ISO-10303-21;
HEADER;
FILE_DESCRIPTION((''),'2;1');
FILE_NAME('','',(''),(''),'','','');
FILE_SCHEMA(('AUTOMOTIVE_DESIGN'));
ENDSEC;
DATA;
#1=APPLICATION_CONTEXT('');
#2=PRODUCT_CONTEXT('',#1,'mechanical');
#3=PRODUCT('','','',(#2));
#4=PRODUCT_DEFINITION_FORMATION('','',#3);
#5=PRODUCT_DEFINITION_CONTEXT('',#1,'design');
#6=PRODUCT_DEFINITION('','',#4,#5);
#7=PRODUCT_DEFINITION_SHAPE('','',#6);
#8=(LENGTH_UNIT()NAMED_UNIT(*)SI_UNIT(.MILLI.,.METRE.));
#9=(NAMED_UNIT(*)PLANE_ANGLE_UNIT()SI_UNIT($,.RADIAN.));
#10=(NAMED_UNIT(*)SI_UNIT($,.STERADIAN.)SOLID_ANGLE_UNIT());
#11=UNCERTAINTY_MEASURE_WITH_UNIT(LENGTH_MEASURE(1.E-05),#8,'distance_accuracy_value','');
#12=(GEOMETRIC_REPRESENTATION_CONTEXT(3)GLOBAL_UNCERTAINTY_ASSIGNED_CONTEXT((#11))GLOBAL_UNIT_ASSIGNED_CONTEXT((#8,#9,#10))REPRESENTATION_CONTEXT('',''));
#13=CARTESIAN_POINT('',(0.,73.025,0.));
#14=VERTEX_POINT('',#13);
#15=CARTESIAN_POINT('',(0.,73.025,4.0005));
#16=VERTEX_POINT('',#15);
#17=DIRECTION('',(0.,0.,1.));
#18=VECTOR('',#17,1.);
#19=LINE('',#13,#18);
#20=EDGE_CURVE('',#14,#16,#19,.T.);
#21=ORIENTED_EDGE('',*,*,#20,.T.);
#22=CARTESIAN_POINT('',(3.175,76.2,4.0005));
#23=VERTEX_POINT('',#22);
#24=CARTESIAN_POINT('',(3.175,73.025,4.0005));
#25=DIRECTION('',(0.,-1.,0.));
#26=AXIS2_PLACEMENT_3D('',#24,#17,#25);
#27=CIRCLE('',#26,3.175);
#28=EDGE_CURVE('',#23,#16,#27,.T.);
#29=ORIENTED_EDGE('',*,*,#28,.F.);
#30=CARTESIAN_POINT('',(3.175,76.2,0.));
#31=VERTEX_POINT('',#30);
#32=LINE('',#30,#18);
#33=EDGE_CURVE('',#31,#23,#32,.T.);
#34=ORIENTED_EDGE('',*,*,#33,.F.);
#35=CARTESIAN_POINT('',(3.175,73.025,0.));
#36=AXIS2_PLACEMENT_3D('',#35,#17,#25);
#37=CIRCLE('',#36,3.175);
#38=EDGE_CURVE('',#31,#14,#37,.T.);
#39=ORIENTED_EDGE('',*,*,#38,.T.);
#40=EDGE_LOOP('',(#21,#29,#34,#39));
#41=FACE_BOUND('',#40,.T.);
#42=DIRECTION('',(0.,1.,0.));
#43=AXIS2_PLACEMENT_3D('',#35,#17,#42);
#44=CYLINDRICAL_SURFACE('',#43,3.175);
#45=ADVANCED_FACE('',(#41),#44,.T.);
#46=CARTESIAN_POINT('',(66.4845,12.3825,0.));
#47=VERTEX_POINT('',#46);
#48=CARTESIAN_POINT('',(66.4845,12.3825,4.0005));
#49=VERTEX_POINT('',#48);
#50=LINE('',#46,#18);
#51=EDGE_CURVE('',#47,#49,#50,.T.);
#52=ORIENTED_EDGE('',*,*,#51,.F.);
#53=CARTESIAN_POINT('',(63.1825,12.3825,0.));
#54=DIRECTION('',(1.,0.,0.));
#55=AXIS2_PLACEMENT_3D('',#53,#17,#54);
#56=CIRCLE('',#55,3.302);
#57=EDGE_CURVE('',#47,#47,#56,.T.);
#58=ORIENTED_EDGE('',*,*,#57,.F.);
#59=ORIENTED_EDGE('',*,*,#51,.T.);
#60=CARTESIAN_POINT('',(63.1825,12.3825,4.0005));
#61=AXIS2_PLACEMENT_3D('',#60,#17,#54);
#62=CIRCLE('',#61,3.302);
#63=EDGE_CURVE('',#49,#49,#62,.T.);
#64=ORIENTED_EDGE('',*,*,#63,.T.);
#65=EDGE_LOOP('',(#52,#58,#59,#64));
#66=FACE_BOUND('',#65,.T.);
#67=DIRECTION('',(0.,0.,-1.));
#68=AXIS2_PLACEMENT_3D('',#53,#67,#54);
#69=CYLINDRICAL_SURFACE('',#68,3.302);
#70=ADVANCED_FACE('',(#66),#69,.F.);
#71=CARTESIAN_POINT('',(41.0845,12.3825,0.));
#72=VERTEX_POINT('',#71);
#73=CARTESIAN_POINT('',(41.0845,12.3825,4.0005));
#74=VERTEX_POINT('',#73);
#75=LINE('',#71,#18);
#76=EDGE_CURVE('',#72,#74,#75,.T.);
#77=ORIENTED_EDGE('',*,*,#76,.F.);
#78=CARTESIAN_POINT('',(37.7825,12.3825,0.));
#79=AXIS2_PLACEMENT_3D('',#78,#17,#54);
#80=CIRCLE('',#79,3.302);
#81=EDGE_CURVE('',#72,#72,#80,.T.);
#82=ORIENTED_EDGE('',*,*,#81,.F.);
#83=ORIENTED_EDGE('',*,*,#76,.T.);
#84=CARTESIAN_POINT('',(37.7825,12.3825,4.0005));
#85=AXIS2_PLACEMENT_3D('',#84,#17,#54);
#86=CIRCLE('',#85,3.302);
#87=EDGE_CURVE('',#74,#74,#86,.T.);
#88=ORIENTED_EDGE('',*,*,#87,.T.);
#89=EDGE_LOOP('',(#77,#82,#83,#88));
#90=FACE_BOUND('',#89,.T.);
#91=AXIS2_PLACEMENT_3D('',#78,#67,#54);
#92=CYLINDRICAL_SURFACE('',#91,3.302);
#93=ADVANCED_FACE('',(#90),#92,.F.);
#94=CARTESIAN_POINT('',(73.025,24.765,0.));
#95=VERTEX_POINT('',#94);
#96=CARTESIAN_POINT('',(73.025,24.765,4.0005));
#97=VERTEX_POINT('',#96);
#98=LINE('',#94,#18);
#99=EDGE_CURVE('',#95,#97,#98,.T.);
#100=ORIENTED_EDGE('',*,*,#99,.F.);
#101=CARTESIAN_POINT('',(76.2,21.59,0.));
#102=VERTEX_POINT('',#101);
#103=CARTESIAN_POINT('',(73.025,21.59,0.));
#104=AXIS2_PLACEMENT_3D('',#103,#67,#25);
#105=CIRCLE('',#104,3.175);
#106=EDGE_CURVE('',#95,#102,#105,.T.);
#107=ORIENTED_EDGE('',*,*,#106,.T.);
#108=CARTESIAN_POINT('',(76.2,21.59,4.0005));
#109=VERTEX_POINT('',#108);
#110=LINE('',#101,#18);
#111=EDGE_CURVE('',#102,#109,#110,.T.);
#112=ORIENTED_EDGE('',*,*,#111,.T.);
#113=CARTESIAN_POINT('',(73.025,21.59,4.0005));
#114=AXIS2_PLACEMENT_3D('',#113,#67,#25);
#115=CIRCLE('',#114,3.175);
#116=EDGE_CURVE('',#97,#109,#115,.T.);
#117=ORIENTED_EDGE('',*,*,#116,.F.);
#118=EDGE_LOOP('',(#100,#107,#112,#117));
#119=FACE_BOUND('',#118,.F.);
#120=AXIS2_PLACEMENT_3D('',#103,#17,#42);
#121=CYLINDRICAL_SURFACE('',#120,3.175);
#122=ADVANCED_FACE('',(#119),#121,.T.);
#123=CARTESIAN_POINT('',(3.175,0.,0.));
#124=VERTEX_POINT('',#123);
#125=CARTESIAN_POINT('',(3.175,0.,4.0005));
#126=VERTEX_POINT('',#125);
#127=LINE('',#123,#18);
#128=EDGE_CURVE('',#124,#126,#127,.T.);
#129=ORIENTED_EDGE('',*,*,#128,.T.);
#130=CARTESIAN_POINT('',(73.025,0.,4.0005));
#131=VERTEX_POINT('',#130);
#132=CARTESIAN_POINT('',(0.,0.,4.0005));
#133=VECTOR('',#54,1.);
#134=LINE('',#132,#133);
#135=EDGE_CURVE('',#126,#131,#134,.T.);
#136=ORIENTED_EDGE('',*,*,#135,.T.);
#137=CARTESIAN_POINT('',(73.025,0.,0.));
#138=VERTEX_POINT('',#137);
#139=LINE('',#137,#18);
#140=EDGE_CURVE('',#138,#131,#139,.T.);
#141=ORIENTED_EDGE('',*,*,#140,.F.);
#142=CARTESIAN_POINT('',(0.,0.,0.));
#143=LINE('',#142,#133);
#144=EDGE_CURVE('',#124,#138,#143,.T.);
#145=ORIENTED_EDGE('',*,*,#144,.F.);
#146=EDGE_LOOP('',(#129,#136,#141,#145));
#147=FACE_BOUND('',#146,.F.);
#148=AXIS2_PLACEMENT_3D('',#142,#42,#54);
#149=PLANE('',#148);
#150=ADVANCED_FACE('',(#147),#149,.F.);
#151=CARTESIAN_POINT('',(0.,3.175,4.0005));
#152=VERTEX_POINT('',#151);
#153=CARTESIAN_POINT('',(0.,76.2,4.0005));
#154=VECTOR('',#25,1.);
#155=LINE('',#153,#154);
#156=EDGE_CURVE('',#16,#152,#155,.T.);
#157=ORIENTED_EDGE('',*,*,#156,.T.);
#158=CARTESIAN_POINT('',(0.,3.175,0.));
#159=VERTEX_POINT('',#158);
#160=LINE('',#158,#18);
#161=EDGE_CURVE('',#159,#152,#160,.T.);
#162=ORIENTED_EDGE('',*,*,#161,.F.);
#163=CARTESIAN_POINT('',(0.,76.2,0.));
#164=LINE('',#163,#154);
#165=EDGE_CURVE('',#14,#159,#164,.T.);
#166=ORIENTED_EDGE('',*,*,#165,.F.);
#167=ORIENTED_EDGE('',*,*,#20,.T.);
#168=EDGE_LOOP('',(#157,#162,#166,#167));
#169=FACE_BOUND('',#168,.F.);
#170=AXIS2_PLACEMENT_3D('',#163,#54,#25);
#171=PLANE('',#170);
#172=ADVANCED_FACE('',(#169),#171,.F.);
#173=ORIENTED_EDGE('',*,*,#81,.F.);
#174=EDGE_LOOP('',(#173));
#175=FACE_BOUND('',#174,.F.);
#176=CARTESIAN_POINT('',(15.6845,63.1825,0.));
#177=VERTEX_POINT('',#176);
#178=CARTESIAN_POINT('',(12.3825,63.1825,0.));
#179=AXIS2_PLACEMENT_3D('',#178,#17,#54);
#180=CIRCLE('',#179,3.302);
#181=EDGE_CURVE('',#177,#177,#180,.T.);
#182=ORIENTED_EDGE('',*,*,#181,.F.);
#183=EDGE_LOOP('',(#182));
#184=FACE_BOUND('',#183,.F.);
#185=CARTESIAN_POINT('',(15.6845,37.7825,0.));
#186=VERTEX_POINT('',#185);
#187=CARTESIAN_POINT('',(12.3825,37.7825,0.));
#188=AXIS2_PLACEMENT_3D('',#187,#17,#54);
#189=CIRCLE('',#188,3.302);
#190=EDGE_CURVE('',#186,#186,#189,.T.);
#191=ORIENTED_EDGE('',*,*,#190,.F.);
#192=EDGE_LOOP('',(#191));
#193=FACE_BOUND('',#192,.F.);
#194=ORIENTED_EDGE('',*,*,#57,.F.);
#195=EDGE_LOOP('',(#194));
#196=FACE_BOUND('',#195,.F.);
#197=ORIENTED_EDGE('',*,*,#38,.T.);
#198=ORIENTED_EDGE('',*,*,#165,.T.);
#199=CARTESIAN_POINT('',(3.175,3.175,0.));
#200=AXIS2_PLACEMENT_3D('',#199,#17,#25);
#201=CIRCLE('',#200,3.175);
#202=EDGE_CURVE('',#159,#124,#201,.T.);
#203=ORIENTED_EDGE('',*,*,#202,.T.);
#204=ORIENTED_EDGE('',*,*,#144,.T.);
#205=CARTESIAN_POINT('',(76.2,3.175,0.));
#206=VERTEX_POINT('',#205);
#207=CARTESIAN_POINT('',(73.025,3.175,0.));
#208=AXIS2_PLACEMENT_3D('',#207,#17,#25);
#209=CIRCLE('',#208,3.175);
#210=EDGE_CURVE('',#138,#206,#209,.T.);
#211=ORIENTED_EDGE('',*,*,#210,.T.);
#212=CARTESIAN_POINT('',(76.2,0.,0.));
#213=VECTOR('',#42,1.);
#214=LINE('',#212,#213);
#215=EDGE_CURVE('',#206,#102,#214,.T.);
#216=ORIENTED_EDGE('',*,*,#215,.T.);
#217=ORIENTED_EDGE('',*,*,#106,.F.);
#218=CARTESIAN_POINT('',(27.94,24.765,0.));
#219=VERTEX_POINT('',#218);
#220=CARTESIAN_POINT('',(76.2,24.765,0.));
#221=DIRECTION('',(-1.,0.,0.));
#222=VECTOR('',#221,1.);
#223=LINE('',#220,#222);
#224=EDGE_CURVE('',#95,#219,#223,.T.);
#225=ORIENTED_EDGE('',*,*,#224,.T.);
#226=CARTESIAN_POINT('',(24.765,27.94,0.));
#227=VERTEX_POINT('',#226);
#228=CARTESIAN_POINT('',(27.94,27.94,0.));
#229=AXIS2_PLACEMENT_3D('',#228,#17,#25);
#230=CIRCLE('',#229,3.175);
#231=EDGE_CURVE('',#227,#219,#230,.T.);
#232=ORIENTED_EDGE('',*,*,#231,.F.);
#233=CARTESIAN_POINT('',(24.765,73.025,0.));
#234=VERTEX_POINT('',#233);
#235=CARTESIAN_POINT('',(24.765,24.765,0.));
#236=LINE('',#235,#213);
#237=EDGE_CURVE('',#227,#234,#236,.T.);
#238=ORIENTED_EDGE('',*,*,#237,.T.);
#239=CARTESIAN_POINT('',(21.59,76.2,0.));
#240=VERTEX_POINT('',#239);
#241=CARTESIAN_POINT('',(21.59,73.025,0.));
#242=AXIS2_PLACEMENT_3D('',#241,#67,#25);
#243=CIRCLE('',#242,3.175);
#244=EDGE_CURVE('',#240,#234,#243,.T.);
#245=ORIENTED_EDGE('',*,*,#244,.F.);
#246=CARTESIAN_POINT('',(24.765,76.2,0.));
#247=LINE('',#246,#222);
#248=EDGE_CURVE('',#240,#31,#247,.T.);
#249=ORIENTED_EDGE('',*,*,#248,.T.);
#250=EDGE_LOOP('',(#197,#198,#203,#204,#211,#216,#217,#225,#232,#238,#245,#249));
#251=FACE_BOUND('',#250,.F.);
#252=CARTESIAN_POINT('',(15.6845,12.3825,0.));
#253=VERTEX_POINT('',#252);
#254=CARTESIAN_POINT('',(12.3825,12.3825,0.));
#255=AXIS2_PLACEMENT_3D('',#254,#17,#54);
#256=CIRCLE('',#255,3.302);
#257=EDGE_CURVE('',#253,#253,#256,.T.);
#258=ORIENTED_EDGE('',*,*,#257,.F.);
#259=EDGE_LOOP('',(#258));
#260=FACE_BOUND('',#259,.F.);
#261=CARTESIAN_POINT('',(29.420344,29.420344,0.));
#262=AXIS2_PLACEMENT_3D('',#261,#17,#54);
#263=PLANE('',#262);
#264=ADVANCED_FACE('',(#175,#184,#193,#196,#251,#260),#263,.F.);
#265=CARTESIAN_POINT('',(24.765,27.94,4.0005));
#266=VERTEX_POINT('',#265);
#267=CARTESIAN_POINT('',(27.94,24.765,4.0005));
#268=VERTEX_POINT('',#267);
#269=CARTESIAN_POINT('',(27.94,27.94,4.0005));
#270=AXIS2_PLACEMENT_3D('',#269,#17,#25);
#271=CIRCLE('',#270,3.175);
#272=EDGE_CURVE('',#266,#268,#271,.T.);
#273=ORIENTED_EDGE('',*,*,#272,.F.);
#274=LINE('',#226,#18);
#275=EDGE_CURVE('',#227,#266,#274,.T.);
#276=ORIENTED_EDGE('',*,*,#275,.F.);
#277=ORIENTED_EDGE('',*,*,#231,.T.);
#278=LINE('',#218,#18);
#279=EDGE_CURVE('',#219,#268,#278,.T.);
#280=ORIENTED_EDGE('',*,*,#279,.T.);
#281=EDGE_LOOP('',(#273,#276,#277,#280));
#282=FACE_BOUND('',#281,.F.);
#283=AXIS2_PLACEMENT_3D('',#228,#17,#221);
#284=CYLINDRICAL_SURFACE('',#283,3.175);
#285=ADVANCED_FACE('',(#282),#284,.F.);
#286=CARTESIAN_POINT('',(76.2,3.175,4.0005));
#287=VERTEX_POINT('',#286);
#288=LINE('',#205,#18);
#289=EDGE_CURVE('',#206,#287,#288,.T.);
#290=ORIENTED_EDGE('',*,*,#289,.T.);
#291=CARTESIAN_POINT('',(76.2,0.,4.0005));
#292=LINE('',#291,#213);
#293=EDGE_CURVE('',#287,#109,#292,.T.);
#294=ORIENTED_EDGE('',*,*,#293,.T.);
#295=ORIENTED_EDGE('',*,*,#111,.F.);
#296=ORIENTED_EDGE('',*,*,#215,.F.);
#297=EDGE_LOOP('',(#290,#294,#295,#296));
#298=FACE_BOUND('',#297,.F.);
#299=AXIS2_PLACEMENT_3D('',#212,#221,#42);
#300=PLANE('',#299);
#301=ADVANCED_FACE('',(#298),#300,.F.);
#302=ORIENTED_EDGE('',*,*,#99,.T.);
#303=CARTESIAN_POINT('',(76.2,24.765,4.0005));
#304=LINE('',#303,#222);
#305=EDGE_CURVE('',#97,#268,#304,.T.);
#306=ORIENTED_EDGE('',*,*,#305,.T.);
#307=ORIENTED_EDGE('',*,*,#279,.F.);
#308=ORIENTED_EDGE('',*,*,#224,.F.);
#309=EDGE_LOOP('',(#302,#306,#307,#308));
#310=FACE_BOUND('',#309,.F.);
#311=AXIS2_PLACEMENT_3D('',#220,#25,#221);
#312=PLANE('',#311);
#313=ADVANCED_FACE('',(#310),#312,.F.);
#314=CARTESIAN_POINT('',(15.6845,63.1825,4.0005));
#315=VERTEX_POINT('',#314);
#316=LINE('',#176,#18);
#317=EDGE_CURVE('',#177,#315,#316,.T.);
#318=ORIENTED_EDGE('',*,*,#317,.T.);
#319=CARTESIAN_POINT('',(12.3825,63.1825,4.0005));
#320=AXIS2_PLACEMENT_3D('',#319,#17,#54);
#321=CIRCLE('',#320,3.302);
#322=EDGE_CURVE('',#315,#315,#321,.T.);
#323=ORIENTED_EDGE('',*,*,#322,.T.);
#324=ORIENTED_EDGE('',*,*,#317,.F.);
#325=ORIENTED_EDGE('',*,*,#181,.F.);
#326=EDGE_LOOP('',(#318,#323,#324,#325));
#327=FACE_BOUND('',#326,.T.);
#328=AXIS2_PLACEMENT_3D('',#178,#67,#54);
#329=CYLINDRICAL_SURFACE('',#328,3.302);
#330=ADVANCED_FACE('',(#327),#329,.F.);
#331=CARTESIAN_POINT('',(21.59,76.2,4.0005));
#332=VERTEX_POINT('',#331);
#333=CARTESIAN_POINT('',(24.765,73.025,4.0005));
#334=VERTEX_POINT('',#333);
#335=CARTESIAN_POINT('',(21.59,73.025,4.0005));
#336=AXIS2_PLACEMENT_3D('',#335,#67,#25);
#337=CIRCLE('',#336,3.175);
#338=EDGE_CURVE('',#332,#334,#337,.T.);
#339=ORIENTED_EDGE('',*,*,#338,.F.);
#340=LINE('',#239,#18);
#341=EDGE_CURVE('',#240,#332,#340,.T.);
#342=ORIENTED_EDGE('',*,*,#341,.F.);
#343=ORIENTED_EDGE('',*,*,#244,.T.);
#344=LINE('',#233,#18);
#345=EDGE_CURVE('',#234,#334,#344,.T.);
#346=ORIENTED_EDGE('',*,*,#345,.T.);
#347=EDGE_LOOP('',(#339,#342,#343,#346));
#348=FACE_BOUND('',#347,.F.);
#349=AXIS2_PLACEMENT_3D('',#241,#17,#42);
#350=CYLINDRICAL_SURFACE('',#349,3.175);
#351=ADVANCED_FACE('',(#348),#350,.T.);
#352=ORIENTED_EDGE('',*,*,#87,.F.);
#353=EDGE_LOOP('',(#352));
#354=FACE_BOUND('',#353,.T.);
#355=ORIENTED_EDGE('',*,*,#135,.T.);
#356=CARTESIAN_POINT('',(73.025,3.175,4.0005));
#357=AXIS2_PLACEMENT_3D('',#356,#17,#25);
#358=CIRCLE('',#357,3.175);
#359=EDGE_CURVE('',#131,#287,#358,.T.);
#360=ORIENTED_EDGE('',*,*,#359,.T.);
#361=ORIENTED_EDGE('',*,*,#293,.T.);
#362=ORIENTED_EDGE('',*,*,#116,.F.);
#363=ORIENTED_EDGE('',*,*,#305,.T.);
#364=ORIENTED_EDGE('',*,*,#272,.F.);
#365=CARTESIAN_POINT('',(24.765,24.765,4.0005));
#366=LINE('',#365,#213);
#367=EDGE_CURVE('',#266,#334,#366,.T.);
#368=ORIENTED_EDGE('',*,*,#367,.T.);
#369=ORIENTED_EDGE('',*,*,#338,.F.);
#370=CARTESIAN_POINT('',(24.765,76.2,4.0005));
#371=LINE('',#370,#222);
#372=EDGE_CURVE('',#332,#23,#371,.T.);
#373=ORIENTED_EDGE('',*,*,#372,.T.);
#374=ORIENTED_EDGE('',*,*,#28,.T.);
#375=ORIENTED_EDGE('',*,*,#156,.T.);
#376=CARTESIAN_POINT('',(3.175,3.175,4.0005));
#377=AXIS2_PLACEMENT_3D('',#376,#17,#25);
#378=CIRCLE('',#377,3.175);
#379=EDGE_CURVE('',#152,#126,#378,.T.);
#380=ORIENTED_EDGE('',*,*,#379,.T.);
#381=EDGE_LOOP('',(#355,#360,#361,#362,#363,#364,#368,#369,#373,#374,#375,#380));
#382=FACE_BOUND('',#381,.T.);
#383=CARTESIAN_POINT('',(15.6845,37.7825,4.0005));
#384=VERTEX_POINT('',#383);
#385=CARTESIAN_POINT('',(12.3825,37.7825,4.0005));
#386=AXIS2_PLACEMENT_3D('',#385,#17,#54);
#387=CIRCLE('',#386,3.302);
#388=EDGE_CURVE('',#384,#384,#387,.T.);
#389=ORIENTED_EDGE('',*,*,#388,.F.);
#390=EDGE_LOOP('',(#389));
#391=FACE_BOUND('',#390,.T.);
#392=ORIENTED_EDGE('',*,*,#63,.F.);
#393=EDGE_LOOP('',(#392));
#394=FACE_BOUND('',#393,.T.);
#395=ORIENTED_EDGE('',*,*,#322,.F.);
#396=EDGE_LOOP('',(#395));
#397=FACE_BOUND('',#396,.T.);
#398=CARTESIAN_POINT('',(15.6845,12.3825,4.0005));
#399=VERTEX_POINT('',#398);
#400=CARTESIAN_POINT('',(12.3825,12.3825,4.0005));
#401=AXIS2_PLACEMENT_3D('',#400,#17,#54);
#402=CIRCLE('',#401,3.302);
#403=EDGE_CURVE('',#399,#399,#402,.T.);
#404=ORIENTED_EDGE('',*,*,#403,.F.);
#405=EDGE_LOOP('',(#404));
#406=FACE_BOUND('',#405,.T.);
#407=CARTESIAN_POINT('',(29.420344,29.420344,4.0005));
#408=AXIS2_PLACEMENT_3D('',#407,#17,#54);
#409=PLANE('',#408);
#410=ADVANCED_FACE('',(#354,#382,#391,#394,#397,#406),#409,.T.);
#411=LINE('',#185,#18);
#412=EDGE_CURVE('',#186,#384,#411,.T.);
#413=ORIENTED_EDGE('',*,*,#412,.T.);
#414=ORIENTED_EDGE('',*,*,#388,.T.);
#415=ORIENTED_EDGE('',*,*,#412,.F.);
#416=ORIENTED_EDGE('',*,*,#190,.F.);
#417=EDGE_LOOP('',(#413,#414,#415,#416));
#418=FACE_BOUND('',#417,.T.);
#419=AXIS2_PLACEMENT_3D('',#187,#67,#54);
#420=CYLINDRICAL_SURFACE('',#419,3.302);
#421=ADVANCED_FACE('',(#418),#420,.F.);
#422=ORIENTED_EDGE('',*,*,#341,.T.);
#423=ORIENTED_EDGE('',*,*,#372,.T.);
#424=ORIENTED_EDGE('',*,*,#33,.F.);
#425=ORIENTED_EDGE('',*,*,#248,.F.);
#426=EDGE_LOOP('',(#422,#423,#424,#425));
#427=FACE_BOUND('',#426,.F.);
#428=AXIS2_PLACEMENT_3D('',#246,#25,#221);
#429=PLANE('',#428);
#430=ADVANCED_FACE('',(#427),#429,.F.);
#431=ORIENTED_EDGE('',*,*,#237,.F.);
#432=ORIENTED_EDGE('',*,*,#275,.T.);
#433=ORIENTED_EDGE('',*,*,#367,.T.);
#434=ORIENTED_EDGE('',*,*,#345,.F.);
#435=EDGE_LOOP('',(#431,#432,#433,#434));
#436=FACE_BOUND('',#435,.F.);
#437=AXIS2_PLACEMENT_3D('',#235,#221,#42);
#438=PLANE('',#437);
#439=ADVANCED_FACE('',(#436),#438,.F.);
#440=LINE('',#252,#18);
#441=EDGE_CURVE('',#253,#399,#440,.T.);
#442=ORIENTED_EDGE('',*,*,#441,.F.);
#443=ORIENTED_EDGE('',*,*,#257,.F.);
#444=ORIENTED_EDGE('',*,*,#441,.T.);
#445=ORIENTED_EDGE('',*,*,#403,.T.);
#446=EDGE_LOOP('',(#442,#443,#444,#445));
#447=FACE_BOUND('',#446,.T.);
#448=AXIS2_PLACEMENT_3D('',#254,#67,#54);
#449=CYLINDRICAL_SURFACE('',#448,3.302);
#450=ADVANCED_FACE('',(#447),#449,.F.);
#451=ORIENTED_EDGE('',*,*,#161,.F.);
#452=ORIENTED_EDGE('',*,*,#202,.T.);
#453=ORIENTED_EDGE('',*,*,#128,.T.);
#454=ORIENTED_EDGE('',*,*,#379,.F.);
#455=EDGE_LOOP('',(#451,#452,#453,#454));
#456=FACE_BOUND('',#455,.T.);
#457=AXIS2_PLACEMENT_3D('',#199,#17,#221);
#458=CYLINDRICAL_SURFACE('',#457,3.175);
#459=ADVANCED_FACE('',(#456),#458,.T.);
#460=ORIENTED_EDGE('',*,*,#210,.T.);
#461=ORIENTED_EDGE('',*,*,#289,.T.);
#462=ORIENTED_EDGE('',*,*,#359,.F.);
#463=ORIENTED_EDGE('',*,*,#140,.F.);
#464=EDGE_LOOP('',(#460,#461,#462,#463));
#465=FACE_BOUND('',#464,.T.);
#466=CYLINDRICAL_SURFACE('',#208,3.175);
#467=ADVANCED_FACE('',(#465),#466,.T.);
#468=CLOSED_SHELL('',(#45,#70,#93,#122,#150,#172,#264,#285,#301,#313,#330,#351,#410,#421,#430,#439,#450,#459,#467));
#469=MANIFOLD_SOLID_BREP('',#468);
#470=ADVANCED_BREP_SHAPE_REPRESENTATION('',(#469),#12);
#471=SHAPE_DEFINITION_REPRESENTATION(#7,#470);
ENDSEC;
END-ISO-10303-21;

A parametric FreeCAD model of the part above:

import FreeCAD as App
import Part
import Sketcher
from FreeCAD import Vector
Q = App.Units.Quantity


def edges_at(feature, points):
    """Names of the edges that pass closest to the given points."""
    edges = feature.Shape.Edges
    near = lambda p: min(range(len(edges)), key=lambda i: edges[i].distToShape(Part.Vertex(*p))[0])
    return sorted({f"Edge{near(p) + 1}" for p in points})

doc = App.newDocument("Part")
body = doc.addObject("PartDesign::Body", "Body")

# Sketch on XY plane
sketch1 = body.newObject("Sketcher::SketchObject", "Sketch")
sketch1.AttachmentSupport = (doc.getObject("XY_Plane"), [""])
sketch1.MapMode = "FlatFace"
sketch1.addGeometry(Part.LineSegment(Vector(24.8, 76.2, 0), Vector(0, 76.2, 0)), False)
sketch1.addGeometry(Part.LineSegment(Vector(0, 76.2, 0), Vector(0, 0, 0)), False)
sketch1.addGeometry(Part.LineSegment(Vector(0, 0, 0), Vector(76.2, 0, 0)), False)
sketch1.addGeometry(Part.LineSegment(Vector(76.2, 0, 0), Vector(76.2, 24.8, 0)), False)
sketch1.addGeometry(Part.LineSegment(Vector(76.2, 24.8, 0), Vector(24.8, 24.8, 0)), False)
sketch1.addGeometry(Part.LineSegment(Vector(24.8, 24.8, 0), Vector(24.8, 76.2, 0)), False)
sketch1.addGeometry(Part.Circle(Vector(12.4, 12.4, 0), Vector(0, 0, 1), 3.3), False)
sketch1.addGeometry(Part.Circle(Vector(37.8, 12.4, 0), Vector(0, 0, 1), 3.3), False)
sketch1.addGeometry(Part.Circle(Vector(12.4, 37.8, 0), Vector(0, 0, 1), 3.3), False)
sketch1.addGeometry(Part.Circle(Vector(63.2, 12.4, 0), Vector(0, 0, 1), 3.3), False)
sketch1.addGeometry(Part.Circle(Vector(12.4, 63.2, 0), Vector(0, 0, 1), 3.3), False)
sketch1.addConstraint(Sketcher.Constraint("Coincident", 0, 2, 1, 1))
sketch1.addConstraint(Sketcher.Constraint("Coincident", 1, 2, 2, 1))
sketch1.addConstraint(Sketcher.Constraint("Coincident", 2, 2, 3, 1))
sketch1.addConstraint(Sketcher.Constraint("Coincident", 3, 2, 4, 1))
sketch1.addConstraint(Sketcher.Constraint("Coincident", 4, 2, 5, 1))
sketch1.addConstraint(Sketcher.Constraint("Coincident", 5, 2, 0, 1))
sketch1.addConstraint(Sketcher.Constraint("Horizontal", 0))
sketch1.addConstraint(Sketcher.Constraint("Vertical", 1))
sketch1.addConstraint(Sketcher.Constraint("Horizontal", 2))
sketch1.addConstraint(Sketcher.Constraint("Vertical", 3))
sketch1.addConstraint(Sketcher.Constraint("Horizontal", 4))
sketch1.addConstraint(Sketcher.Constraint("Vertical", 5))
sketch1.addConstraint(Sketcher.Constraint("Coincident", 1, 2, -1, 1))
sketch1.addConstraint(Sketcher.Constraint("Equal", 6, 7))
sketch1.addConstraint(Sketcher.Constraint("Equal", 7, 8))
sketch1.addConstraint(Sketcher.Constraint("Equal", 8, 9))
sketch1.addConstraint(Sketcher.Constraint("Equal", 9, 10))
sketch1.addConstraint(Sketcher.Constraint("Horizontal", 6, 3, 7, 3))
sketch1.addConstraint(Sketcher.Constraint("Horizontal", 7, 3, 9, 3))
sketch1.addConstraint(Sketcher.Constraint("Vertical", 6, 3, 8, 3))
sketch1.addConstraint(Sketcher.Constraint("Vertical", 8, 3, 10, 3))
sketch1.addConstraint(Sketcher.Constraint("Equal", 2, 1))
sketch1.addConstraint(Sketcher.Constraint("Equal", 0, 3))
sketch1.addConstraint(Sketcher.Constraint("Diameter", 6, Q("0.26 in")))
sketch1.addConstraint(Sketcher.Constraint("DistanceX", 2, 1, 2, 2, Q("3 in")))
sketch1.addConstraint(Sketcher.Constraint("DistanceX", 6, 3, 7, 3, Q("1 in")))
sketch1.addConstraint(Sketcher.Constraint("DistanceY", 6, 3, 8, 3, Q("1 in")))
sketch1.addConstraint(Sketcher.Constraint("DistanceX", 7, 3, 9, 3, Q("1 in")))
sketch1.addConstraint(Sketcher.Constraint("DistanceY", 8, 3, 10, 3, Q("1 in")))
sketch1.addConstraint(Sketcher.Constraint("DistanceX", 0, 2, 0, 1, Q("0.975 in")))
sketch1.addConstraint(Sketcher.Constraint("DistanceX", -1, 1, 6, 3, Q("0.4875 in")))
sketch1.addConstraint(Sketcher.Constraint("DistanceY", -1, 1, 6, 3, Q("0.4875 in")))
pad1 = body.newObject("PartDesign::Pad", "Pad")
pad1.Profile = sketch1
pad1.Length = Q("0.1575 in")
doc.recompute()

fillet = body.newObject("PartDesign::Fillet", "Fillet")
fillet.Base = (pad1, edges_at(pad1, [
    (24.765, 24.765, 2),
    (76.2, 24.765, 2),
    (76.2, 0, 2),
    (0, 0, 2),
    (24.765, 76.2, 2),
    (0, 76.2, 2),
]))
fillet.Radius = Q("0.125 in")

doc.recompute()
